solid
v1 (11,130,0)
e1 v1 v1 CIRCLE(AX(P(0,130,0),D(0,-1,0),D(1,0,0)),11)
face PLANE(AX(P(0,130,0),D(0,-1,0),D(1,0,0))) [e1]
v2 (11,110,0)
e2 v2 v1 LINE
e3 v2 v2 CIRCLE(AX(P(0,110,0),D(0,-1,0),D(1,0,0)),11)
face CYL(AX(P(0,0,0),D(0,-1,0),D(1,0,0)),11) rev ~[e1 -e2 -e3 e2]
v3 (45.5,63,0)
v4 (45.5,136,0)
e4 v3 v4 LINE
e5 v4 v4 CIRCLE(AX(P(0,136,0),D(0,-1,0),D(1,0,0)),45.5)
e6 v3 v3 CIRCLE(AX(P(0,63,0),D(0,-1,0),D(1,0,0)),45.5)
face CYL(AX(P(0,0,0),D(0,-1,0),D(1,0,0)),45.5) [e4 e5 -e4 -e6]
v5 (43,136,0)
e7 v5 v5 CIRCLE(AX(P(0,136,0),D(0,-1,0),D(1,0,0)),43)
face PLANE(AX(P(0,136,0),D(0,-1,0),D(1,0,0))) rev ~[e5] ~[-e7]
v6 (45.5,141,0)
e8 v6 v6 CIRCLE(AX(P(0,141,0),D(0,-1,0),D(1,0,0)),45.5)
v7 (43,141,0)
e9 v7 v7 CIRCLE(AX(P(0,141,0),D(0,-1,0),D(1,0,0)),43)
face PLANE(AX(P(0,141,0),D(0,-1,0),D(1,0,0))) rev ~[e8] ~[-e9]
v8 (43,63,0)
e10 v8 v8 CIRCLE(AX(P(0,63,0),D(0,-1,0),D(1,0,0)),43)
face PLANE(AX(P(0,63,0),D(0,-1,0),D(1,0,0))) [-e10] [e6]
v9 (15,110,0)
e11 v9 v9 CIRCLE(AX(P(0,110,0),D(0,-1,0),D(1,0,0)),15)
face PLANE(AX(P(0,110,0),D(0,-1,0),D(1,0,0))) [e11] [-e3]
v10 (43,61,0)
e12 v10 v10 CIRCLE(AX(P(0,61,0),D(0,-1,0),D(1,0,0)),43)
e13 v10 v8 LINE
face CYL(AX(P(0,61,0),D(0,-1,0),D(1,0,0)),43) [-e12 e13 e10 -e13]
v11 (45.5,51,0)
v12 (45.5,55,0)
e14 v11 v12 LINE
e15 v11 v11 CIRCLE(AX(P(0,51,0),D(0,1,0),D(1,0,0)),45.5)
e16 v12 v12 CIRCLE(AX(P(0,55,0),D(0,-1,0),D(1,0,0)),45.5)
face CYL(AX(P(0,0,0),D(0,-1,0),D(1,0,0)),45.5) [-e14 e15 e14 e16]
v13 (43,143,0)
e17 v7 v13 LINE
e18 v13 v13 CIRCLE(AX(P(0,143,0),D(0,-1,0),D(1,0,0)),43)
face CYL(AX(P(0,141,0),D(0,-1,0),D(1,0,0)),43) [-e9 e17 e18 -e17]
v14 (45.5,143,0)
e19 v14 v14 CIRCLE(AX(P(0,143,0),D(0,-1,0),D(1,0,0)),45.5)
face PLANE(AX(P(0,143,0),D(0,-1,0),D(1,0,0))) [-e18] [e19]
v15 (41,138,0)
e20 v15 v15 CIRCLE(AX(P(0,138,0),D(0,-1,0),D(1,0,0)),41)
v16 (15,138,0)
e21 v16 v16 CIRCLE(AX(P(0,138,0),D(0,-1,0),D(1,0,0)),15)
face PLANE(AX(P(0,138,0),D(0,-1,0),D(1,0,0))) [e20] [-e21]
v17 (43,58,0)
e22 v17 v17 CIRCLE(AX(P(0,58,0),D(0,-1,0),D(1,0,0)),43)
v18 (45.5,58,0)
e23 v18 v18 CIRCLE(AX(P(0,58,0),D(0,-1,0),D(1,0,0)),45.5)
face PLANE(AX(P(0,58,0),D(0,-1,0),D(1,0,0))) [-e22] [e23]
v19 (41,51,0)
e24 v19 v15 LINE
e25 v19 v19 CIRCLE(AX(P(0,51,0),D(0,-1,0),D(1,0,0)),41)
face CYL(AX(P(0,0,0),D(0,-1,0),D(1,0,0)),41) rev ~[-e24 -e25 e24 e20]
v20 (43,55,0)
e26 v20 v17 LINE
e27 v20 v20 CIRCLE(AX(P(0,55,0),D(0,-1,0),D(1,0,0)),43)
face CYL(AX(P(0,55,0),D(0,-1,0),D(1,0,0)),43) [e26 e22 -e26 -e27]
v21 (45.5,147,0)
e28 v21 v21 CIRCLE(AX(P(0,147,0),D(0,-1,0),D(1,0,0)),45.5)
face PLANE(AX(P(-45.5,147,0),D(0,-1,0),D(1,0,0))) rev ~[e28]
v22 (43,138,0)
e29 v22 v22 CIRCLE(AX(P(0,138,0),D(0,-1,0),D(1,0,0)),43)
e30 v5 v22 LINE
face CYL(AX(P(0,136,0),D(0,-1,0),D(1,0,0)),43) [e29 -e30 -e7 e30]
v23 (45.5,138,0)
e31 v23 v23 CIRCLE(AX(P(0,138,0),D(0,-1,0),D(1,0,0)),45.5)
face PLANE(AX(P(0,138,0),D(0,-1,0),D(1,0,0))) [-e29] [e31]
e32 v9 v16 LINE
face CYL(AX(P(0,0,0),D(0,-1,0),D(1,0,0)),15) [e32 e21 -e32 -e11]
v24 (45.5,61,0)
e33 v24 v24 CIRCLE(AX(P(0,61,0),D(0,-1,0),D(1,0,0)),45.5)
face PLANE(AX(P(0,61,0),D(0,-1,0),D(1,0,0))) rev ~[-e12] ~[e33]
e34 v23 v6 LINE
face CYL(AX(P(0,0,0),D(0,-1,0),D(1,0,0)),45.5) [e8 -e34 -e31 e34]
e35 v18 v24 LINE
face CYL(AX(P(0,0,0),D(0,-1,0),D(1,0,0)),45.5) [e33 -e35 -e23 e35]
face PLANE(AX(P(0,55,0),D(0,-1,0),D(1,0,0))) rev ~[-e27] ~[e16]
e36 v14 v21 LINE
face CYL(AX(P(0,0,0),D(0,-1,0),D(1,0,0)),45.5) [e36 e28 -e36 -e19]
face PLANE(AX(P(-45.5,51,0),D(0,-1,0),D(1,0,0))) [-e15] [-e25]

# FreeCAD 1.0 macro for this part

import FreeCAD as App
import Part
import Sketcher
from FreeCAD import Vector


def add_polygon(sketch, points):
    """Adds a closed chain of lines whose ends are joined by coincident constraints."""
    first, n = sketch.GeometryCount, len(points)
    for a, b in zip(points, points[1:] + points[:1]):
        sketch.addGeometry(Part.LineSegment(App.Vector(*a, 0), App.Vector(*b, 0)), False)
    for i in range(n):
        sketch.addConstraint(Sketcher.Constraint("Coincident", first + i, 2, first + (i + 1) % n, 1))

doc = App.newDocument("Part")
body = doc.addObject("PartDesign::Body", "Body")

sketch1 = doc.addObject("Sketcher::SketchObject", "Sketch")
body.addObject(sketch1)
sketch1.AttachmentSupport = (doc.XY_Plane, [""])
sketch1.MapMode = "FlatFace"
add_polygon(sketch1, [(46, 147), (-46, 147), (-46, 51), (46, 51)])
sketch1.addConstraint([
    Sketcher.Constraint("Horizontal", 0),
    Sketcher.Constraint("Vertical", 1),
    Sketcher.Constraint("Horizontal", 2),
    Sketcher.Constraint("Vertical", 3),
    Sketcher.Constraint("DistanceX", 0, 2, 0, 1, 91.0),
    Sketcher.Constraint("DistanceY", 1, 2, 1, 1, 96.0),
    Sketcher.Constraint("DistanceY", -1, 1, 0, 2, 147.0),
    Sketcher.Constraint("DistanceX", 0, 2, -1, 1, 45.5),
])
pad1 = doc.addObject("PartDesign::Pad", "Pad")
body.addObject(pad1)
pad1.Profile = sketch1
pad1.Length = 100
pad1.Midplane = True
body2 = doc.addObject("PartDesign::Body", "Body001")

sketch2 = doc.addObject("Sketcher::SketchObject", "Sketch001")
body2.addObject(sketch2)
sketch2.AttachmentSupport = (doc.getObject("XZ_Plane001"), [""])
sketch2.MapMode = "FlatFace"
sketch2.addGeometry(Part.Circle(Vector(0, 0, 0), Vector(0, 0, 1), 46), False)
sketch2.addConstraint([
    Sketcher.Constraint("Coincident", 0, 3, -1, 1),
    Sketcher.Constraint("Diameter", 0, 91.0),
])
pad2 = doc.addObject("PartDesign::Pad", "Pad001")
body2.addObject(pad2)
pad2.Profile = sketch2
pad2.Length = 200
pad2.Reversed = True
doc.recompute()

boolean = doc.addObject("PartDesign::Boolean", "Boolean")
body2.addObject(boolean)
boolean.Type = "Common"
boolean.addObjects([body])

sketch3 = doc.addObject("Sketcher::SketchObject", "Sketch002")
body2.addObject(sketch3)
sketch3.AttachmentSupport = (doc.getObject("XZ_Plane001"), [""])
sketch3.MapMode = "FlatFace"
sketch3.addGeometry([
    Part.Circle(Vector(0, 0, 0), Vector(0, 0, 1), 41),
    Part.Circle(Vector(0, 0, 0), Vector(0, 0, 1), 15),
], False)
sketch3.addConstraint([
    Sketcher.Constraint("Coincident", 0, 3, -1, 1),
    Sketcher.Constraint("Coincident", 1, 3, -1, 1),
    Sketcher.Constraint("Diameter", 0, 82.0),
    Sketcher.Constraint("Diameter", 1, 30.0),
])
pocket1 = doc.addObject("PartDesign::Pocket", "Pocket")
body2.addObject(pocket1)
pocket1.Profile = sketch3
pocket1.Length = 138

sketch4 = doc.addObject("Sketcher::SketchObject", "Sketch003")
body2.addObject(sketch4)
sketch4.AttachmentSupport = (doc.getObject("XZ_Plane001"), [""])
sketch4.MapMode = "FlatFace"
sketch4.AttachmentOffset = App.Placement(Vector(0, 0, -141), App.Rotation())
sketch4.addGeometry([
    Part.Circle(Vector(0, 0, 0), Vector(0, 0, 1), 48),
    Part.Circle(Vector(0, 0, 0), Vector(0, 0, 1), 43),
], False)
sketch4.addConstraint([
    Sketcher.Constraint("Coincident", 0, 3, -1, 1),
    Sketcher.Constraint("Coincident", 1, 3, -1, 1),
    Sketcher.Constraint("Diameter", 0, 95.0),
    Sketcher.Constraint("Diameter", 1, 86.0),
])
pocket2 = doc.addObject("PartDesign::Pocket", "Pocket001")
body2.addObject(pocket2)
pocket2.Profile = sketch4
pocket2.Length = 2

sketch5 = doc.addObject("Sketcher::SketchObject", "Sketch004")
body2.addObject(sketch5)
sketch5.AttachmentSupport = (doc.getObject("XZ_Plane001"), [""])
sketch5.MapMode = "FlatFace"
sketch5.AttachmentOffset = App.Placement(Vector(0, 0, -136), App.Rotation())
sketch5.addGeometry([
    Part.Circle(Vector(0, 0, 0), Vector(0, 0, 1), 48),
    Part.Circle(Vector(0, 0, 0), Vector(0, 0, 1), 43),
], False)
sketch5.addConstraint([
    Sketcher.Constraint("Coincident", 0, 3, -1, 1),
    Sketcher.Constraint("Coincident", 1, 3, -1, 1),
    Sketcher.Constraint("Diameter", 0, 95.0),
    Sketcher.Constraint("Diameter", 1, 86.0),
])
pocket3 = doc.addObject("PartDesign::Pocket", "Pocket002")
body2.addObject(pocket3)
pocket3.Profile = sketch5
pocket3.Length = 2

sketch6 = doc.addObject("Sketcher::SketchObject", "Sketch005")
body2.addObject(sketch6)
sketch6.AttachmentSupport = (doc.getObject("XZ_Plane001"), [""])
sketch6.MapMode = "FlatFace"
sketch6.AttachmentOffset = App.Placement(Vector(0, 0, -55), App.Rotation())
sketch6.addGeometry([
    Part.Circle(Vector(0, 0, 0), Vector(0, 0, 1), 48),
    Part.Circle(Vector(0, 0, 0), Vector(0, 0, 1), 43),
], False)
sketch6.addConstraint([
    Sketcher.Constraint("Coincident", 0, 3, -1, 1),
    Sketcher.Constraint("Coincident", 1, 3, -1, 1),
    Sketcher.Constraint("Diameter", 0, 95.0),
    Sketcher.Constraint("Diameter", 1, 86.0),
])
pocket4 = doc.addObject("PartDesign::Pocket", "Pocket003")
body2.addObject(pocket4)
pocket4.Profile = sketch6
pocket4.Length = 3

sketch7 = doc.addObject("Sketcher::SketchObject", "Sketch006")
body2.addObject(sketch7)
sketch7.AttachmentSupport = (doc.getObject("XZ_Plane001"), [""])
sketch7.MapMode = "FlatFace"
sketch7.addGeometry(Part.Circle(Vector(0, 0, 0), Vector(0, 0, 1), 30), False)
sketch7.addConstraint([
    Sketcher.Constraint("Coincident", 0, 3, -1, 1),
    Sketcher.Constraint("Diameter", 0, 60.0),
])
pocket5 = doc.addObject("PartDesign::Pocket", "Pocket004")
body2.addObject(pocket5)
pocket5.Profile = sketch7
pocket5.Length = 110

sketch8 = doc.addObject("Sketcher::SketchObject", "Sketch007")
body2.addObject(sketch8)
sketch8.AttachmentSupport = (doc.getObject("XZ_Plane001"), [""])
sketch8.MapMode = "FlatFace"
sketch8.AttachmentOffset = App.Placement(Vector(0, 0, -61), App.Rotation())
sketch8.addGeometry([
    Part.Circle(Vector(0, 0, 0), Vector(0, 0, 1), 48),
    Part.Circle(Vector(0, 0, 0), Vector(0, 0, 1), 43),
], False)
sketch8.addConstraint([
    Sketcher.Constraint("Coincident", 0, 3, -1, 1),
    Sketcher.Constraint("Coincident", 1, 3, -1, 1),
    Sketcher.Constraint("Diameter", 0, 95.0),
    Sketcher.Constraint("Diameter", 1, 86.0),
])
pocket6 = doc.addObject("PartDesign::Pocket", "Pocket005")
body2.addObject(pocket6)
pocket6.Profile = sketch8
pocket6.Length = 2

sketch9 = doc.addObject("Sketcher::SketchObject", "Sketch008")
body2.addObject(sketch9)
sketch9.AttachmentSupport = (doc.getObject("XZ_Plane001"), [""])
sketch9.MapMode = "FlatFace"
sketch9.addGeometry(Part.Circle(Vector(0, 0, 0), Vector(0, 0, 1), 11), False)
sketch9.addConstraint([
    Sketcher.Constraint("Coincident", 0, 3, -1, 1),
    Sketcher.Constraint("Diameter", 0, 22.0),
])
pocket7 = doc.addObject("PartDesign::Pocket", "Pocket006")
body2.addObject(pocket7)
pocket7.Profile = sketch9
pocket7.Type = "TwoLengths"
pocket7.Length = 130
pocket7.Length2 = 5

doc.recompute()
